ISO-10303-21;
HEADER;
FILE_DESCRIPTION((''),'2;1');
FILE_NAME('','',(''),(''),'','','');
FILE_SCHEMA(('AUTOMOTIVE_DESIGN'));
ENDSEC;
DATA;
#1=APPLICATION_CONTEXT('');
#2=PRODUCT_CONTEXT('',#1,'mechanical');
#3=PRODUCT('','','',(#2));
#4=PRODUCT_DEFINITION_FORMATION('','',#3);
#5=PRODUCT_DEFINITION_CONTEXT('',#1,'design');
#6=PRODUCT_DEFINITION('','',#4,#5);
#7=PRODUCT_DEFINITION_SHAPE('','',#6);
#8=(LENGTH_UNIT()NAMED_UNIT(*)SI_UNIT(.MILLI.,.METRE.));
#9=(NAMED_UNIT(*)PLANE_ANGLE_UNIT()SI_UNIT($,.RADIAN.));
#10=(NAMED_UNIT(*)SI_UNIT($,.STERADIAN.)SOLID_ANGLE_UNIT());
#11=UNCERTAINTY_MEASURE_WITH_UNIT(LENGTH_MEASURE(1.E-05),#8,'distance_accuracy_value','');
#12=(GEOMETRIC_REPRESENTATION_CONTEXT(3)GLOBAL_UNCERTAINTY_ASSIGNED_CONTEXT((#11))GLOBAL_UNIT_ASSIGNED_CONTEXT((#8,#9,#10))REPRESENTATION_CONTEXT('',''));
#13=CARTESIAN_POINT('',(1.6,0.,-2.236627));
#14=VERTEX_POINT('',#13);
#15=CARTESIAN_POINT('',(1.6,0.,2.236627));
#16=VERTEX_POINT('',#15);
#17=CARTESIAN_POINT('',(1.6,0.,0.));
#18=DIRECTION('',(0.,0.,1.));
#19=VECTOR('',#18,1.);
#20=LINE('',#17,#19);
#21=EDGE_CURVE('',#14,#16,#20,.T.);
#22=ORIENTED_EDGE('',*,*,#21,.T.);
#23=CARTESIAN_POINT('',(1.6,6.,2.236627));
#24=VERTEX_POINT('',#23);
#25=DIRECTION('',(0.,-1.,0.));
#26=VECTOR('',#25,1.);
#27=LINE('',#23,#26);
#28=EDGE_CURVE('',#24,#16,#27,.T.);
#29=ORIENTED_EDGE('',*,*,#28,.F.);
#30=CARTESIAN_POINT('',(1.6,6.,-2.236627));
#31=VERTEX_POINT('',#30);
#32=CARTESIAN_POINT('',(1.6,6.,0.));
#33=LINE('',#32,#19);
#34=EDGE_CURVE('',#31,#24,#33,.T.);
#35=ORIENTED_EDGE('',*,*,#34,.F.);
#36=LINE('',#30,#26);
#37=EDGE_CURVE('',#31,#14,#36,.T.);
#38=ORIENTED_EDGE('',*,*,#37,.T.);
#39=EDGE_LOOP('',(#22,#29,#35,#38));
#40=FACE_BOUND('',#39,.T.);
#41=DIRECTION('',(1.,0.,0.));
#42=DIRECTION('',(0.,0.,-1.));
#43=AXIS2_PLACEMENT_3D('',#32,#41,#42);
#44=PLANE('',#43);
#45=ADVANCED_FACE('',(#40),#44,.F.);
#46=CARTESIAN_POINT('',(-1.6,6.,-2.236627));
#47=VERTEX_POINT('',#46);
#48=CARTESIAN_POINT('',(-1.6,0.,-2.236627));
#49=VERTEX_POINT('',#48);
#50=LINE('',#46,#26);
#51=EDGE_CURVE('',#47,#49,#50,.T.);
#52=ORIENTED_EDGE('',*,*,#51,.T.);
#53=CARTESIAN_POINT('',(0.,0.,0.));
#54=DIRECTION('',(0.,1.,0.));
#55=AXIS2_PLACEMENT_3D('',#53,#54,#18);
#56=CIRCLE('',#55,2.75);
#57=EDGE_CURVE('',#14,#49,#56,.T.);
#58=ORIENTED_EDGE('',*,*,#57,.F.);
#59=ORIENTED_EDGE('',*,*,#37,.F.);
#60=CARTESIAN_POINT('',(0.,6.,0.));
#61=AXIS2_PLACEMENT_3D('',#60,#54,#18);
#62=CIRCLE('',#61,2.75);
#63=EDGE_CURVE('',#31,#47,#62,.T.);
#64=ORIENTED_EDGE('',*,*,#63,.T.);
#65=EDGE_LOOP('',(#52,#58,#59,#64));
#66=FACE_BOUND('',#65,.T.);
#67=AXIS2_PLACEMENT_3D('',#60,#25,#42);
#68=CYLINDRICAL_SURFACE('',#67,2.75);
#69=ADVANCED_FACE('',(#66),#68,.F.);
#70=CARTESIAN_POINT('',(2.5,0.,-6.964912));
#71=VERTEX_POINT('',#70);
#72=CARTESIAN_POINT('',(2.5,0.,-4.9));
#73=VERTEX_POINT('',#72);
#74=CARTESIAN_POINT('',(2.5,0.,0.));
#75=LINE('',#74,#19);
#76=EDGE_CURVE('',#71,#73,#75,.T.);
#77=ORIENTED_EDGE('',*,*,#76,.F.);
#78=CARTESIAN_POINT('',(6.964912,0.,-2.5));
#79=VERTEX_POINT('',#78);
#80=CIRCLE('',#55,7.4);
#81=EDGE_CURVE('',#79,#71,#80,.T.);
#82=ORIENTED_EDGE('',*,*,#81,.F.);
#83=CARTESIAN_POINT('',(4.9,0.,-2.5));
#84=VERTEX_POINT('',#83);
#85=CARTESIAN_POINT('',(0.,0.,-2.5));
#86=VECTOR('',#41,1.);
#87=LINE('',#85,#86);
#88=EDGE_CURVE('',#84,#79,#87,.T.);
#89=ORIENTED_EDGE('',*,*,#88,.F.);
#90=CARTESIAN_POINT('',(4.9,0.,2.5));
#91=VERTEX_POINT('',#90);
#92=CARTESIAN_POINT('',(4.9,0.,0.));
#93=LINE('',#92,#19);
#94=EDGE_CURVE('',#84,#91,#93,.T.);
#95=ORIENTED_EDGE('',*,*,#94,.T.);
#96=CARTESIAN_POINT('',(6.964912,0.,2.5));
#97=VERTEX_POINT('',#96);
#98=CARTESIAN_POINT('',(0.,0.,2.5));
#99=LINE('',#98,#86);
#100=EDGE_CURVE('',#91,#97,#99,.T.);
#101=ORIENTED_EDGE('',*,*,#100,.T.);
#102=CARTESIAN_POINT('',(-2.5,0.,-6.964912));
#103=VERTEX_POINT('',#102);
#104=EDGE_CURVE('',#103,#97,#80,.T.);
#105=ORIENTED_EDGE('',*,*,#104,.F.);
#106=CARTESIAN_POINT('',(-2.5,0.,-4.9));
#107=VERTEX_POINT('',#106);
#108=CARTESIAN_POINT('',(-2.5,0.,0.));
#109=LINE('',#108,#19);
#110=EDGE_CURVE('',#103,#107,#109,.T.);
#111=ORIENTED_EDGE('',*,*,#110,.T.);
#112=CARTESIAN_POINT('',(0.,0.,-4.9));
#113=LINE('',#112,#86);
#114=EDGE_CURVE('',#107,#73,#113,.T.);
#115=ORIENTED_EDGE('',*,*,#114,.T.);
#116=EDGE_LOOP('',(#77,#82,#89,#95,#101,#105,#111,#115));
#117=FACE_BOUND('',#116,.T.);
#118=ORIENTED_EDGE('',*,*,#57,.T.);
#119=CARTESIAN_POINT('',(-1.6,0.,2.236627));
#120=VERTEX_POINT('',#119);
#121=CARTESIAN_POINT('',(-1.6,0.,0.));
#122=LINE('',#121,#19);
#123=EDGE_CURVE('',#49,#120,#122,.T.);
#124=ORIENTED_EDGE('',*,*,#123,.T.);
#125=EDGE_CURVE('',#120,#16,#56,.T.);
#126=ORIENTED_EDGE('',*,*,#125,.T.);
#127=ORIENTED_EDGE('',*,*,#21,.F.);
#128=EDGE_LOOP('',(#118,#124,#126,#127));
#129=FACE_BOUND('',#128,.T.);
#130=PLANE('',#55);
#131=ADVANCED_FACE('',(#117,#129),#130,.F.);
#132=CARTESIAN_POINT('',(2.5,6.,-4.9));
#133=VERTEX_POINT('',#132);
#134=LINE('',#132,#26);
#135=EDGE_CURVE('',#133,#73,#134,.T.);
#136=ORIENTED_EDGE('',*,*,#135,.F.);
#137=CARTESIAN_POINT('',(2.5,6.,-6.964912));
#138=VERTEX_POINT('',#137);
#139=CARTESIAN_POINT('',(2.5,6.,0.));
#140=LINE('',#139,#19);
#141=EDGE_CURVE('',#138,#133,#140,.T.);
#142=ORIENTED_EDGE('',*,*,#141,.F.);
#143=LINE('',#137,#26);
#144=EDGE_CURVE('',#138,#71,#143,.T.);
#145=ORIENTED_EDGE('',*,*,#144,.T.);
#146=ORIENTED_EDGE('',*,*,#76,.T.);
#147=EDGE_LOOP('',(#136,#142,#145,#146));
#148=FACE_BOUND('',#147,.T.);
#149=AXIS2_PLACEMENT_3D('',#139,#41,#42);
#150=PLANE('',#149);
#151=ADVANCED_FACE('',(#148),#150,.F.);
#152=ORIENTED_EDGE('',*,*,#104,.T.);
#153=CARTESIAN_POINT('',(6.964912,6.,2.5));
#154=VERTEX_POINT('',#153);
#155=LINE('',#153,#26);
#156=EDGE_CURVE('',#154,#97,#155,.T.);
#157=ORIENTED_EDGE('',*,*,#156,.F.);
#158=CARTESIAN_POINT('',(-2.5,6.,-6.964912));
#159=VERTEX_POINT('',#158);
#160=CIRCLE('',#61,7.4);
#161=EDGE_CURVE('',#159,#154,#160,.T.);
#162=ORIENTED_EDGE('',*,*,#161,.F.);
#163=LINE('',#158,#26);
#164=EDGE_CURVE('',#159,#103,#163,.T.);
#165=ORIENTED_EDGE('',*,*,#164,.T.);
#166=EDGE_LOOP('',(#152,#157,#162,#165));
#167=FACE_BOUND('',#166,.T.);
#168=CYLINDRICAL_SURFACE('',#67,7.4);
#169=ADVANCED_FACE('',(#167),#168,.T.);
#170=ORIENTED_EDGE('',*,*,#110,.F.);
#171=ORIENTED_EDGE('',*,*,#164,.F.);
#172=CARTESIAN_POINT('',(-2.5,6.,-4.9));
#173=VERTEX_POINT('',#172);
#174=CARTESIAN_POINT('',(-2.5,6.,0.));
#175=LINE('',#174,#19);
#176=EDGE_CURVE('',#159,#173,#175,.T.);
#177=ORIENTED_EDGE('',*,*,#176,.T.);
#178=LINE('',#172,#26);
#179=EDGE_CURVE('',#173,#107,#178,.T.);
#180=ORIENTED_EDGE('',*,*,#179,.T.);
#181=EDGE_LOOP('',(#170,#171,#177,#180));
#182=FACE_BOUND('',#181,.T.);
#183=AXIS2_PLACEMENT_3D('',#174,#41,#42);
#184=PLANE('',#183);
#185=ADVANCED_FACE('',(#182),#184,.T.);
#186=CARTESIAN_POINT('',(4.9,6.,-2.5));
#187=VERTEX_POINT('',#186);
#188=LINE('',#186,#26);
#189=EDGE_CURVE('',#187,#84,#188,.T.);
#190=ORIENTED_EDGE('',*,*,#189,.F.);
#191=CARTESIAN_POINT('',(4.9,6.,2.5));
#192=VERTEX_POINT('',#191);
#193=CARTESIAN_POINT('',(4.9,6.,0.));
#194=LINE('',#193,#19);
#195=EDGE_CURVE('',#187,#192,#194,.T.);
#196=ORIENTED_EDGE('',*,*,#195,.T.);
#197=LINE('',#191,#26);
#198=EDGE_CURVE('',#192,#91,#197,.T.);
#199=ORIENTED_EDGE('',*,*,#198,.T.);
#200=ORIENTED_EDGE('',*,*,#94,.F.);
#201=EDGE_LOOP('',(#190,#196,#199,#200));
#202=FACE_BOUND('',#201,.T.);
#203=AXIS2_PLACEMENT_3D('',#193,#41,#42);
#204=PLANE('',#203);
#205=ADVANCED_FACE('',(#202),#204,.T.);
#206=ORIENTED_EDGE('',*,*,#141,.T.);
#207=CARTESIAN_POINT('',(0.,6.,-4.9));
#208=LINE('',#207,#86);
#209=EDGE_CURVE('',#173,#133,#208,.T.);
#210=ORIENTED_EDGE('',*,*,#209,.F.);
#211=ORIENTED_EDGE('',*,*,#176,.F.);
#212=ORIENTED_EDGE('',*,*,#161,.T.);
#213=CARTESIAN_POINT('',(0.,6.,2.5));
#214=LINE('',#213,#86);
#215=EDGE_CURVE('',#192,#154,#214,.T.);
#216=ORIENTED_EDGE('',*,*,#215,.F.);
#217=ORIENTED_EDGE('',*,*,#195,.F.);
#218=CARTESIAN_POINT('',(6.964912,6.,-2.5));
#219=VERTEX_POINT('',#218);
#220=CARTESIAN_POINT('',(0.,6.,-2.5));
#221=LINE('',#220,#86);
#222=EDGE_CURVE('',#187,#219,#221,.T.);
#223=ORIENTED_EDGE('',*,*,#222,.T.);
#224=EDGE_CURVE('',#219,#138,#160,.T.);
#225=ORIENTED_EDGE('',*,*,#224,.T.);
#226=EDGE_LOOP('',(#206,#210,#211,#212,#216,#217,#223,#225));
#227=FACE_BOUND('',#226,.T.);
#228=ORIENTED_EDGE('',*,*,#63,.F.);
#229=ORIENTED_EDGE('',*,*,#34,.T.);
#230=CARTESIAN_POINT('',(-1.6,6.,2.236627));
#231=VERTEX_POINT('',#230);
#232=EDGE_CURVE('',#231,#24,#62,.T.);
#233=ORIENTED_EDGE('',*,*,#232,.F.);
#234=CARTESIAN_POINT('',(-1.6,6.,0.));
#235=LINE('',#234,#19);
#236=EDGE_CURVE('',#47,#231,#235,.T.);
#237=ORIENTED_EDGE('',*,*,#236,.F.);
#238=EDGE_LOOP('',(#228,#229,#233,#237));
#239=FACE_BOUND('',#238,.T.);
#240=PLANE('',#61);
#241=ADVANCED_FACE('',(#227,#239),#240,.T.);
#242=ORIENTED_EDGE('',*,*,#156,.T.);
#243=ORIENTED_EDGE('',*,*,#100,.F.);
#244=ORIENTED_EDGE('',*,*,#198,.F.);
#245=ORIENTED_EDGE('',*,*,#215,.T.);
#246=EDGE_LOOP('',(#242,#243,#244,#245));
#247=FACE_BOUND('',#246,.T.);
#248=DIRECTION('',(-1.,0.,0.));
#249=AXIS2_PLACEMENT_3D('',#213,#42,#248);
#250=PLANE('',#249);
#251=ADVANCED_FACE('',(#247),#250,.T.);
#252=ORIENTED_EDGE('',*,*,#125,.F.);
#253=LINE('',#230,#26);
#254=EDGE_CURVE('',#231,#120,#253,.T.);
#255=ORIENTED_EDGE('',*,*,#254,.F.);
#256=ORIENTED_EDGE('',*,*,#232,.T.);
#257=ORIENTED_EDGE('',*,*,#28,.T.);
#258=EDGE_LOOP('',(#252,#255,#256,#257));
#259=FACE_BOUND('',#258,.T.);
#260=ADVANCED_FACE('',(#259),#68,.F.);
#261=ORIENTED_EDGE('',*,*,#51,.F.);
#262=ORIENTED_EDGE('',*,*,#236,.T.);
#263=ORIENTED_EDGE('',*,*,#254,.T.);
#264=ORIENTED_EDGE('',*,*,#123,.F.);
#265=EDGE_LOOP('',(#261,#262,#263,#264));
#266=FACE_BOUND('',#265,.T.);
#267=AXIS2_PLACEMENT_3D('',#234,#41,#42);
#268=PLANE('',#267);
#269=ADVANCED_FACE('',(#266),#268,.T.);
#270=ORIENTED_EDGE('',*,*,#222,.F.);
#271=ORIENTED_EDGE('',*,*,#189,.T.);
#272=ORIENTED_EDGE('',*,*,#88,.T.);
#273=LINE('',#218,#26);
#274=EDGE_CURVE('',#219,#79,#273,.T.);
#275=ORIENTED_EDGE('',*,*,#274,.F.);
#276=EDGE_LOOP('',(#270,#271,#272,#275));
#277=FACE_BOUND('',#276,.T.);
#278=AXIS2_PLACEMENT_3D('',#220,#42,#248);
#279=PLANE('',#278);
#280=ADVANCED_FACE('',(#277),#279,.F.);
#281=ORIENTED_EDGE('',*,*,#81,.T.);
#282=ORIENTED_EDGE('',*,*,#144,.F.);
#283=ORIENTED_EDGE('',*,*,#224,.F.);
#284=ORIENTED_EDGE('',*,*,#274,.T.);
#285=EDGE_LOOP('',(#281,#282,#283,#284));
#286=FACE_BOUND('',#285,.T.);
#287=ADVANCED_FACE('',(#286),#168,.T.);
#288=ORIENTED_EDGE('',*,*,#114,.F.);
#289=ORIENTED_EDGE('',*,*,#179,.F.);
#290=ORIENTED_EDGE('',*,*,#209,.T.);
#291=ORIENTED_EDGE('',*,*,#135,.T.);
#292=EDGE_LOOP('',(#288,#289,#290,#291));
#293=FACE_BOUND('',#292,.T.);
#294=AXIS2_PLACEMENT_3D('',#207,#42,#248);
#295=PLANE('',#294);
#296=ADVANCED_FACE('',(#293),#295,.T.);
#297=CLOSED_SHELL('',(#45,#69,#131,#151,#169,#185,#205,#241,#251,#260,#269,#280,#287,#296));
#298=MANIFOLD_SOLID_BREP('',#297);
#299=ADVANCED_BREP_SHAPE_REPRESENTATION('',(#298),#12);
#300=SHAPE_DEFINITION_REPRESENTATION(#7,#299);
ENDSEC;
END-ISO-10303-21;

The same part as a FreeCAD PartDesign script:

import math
import FreeCAD as App
import Part
import Sketcher
from FreeCAD import Vector

doc = App.newDocument("Part")
body = doc.addObject("PartDesign::Body", "Body")

sketch1 = doc.addObject("Sketcher::SketchObject", "Sketch")
body.addObject(sketch1)
sketch1.AttachmentSupport = (doc.XZ_Plane, [""])
sketch1.MapMode = "FlatFace"
sketch1.addGeometry([
    Part.LineSegment(Vector(4.9, 2.5, 0), Vector(4.9, -2.5, 0)),
    Part.LineSegment(Vector(4.9, -2.5, 0), Vector(6.964912, -2.5, 0)),
    Part.ArcOfCircle(Part.Circle(Vector(0, 0, 0), Vector(0, 0, 1), 7.4), math.radians(-70.254802), math.radians(-19.745198)),
    Part.LineSegment(Vector(2.5, -6.964912, 0), Vector(2.5, -4.9, 0)),
    Part.LineSegment(Vector(2.5, -4.9, 0), Vector(-2.5, -4.9, 0)),
    Part.LineSegment(Vector(-2.5, -4.9, 0), Vector(-2.5, -6.964912, 0)),
    Part.ArcOfCircle(Part.Circle(Vector(0, 0, 0), Vector(0, 0, 1), 7.4), math.radians(19.745198), math.radians(250.254802)),
    Part.LineSegment(Vector(6.964912, 2.5, 0), Vector(4.9, 2.5, 0)),
    Part.ArcOfCircle(Part.Circle(Vector(0, 0, 0), Vector(0, 0, 1), 2.75), math.radians(54.421474), math.radians(125.578526)),
    Part.LineSegment(Vector(-1.6, 2.236627, 0), Vector(-1.6, -2.236627, 0)),
    Part.ArcOfCircle(Part.Circle(Vector(0, 0, 0), Vector(0, 0, 1), 2.75), math.radians(-125.578526), math.radians(-54.421474)),
    Part.LineSegment(Vector(1.6, -2.236627, 0), Vector(1.6, 2.236627, 0)),
], False)
sketch1.addConstraint([
    Sketcher.Constraint("Coincident", 0, 2, 1, 1),
    Sketcher.Constraint("Coincident", 1, 2, 2, 2),
    Sketcher.Constraint("Coincident", 2, 1, 3, 1),
    Sketcher.Constraint("Coincident", 3, 2, 4, 1),
    Sketcher.Constraint("Coincident", 4, 2, 5, 1),
    Sketcher.Constraint("Coincident", 5, 2, 6, 2),
    Sketcher.Constraint("Coincident", 6, 1, 7, 1),
    Sketcher.Constraint("Coincident", 7, 2, 0, 1),
    Sketcher.Constraint("Coincident", 8, 2, 9, 1),
    Sketcher.Constraint("Coincident", 9, 2, 10, 1),
    Sketcher.Constraint("Coincident", 10, 2, 11, 1),
    Sketcher.Constraint("Coincident", 11, 2, 8, 1),
    Sketcher.Constraint("Vertical", 0),
    Sketcher.Constraint("Horizontal", 1),
    Sketcher.Constraint("Vertical", 3),
    Sketcher.Constraint("Horizontal", 4),
    Sketcher.Constraint("Vertical", 5),
    Sketcher.Constraint("Horizontal", 7),
    Sketcher.Constraint("Vertical", 9),
    Sketcher.Constraint("Vertical", 11),
    Sketcher.Constraint("Coincident", 2, 3, -1, 1),
    Sketcher.Constraint("Coincident", 6, 3, -1, 1),
    Sketcher.Constraint("Coincident", 8, 3, -1, 1),
    Sketcher.Constraint("Coincident", 10, 3, -1, 1),
    Sketcher.Constraint("Equal", 2, 6),
    Sketcher.Constraint("Equal", 8, 10),
    Sketcher.Constraint("Horizontal", 2, 1, 5, 2),
    Sketcher.Constraint("Horizontal", 9, 2, 10, 2),
    Sketcher.Constraint("Vertical", 1, 2, 6, 1),
    Sketcher.Constraint("Equal", 4, 0),
    Sketcher.Constraint("Equal", 7, 3),
    Sketcher.Constraint("Radius", 2, 7.4),
    Sketcher.Constraint("DistanceX", 4, 2, 4, 1, 5.0),
    Sketcher.Constraint("Radius", 8, 2.75),
    Sketcher.Constraint("DistanceX", -1, 1, 0, 2, 4.9),
    Sketcher.Constraint("DistanceX", 8, 2, -1, 1, 1.6),
])
pad1 = doc.addObject("PartDesign::Pad", "Pad")
body.addObject(pad1)
pad1.Profile = sketch1
pad1.Length = 6
pad1.Reversed = True

doc.recompute()
